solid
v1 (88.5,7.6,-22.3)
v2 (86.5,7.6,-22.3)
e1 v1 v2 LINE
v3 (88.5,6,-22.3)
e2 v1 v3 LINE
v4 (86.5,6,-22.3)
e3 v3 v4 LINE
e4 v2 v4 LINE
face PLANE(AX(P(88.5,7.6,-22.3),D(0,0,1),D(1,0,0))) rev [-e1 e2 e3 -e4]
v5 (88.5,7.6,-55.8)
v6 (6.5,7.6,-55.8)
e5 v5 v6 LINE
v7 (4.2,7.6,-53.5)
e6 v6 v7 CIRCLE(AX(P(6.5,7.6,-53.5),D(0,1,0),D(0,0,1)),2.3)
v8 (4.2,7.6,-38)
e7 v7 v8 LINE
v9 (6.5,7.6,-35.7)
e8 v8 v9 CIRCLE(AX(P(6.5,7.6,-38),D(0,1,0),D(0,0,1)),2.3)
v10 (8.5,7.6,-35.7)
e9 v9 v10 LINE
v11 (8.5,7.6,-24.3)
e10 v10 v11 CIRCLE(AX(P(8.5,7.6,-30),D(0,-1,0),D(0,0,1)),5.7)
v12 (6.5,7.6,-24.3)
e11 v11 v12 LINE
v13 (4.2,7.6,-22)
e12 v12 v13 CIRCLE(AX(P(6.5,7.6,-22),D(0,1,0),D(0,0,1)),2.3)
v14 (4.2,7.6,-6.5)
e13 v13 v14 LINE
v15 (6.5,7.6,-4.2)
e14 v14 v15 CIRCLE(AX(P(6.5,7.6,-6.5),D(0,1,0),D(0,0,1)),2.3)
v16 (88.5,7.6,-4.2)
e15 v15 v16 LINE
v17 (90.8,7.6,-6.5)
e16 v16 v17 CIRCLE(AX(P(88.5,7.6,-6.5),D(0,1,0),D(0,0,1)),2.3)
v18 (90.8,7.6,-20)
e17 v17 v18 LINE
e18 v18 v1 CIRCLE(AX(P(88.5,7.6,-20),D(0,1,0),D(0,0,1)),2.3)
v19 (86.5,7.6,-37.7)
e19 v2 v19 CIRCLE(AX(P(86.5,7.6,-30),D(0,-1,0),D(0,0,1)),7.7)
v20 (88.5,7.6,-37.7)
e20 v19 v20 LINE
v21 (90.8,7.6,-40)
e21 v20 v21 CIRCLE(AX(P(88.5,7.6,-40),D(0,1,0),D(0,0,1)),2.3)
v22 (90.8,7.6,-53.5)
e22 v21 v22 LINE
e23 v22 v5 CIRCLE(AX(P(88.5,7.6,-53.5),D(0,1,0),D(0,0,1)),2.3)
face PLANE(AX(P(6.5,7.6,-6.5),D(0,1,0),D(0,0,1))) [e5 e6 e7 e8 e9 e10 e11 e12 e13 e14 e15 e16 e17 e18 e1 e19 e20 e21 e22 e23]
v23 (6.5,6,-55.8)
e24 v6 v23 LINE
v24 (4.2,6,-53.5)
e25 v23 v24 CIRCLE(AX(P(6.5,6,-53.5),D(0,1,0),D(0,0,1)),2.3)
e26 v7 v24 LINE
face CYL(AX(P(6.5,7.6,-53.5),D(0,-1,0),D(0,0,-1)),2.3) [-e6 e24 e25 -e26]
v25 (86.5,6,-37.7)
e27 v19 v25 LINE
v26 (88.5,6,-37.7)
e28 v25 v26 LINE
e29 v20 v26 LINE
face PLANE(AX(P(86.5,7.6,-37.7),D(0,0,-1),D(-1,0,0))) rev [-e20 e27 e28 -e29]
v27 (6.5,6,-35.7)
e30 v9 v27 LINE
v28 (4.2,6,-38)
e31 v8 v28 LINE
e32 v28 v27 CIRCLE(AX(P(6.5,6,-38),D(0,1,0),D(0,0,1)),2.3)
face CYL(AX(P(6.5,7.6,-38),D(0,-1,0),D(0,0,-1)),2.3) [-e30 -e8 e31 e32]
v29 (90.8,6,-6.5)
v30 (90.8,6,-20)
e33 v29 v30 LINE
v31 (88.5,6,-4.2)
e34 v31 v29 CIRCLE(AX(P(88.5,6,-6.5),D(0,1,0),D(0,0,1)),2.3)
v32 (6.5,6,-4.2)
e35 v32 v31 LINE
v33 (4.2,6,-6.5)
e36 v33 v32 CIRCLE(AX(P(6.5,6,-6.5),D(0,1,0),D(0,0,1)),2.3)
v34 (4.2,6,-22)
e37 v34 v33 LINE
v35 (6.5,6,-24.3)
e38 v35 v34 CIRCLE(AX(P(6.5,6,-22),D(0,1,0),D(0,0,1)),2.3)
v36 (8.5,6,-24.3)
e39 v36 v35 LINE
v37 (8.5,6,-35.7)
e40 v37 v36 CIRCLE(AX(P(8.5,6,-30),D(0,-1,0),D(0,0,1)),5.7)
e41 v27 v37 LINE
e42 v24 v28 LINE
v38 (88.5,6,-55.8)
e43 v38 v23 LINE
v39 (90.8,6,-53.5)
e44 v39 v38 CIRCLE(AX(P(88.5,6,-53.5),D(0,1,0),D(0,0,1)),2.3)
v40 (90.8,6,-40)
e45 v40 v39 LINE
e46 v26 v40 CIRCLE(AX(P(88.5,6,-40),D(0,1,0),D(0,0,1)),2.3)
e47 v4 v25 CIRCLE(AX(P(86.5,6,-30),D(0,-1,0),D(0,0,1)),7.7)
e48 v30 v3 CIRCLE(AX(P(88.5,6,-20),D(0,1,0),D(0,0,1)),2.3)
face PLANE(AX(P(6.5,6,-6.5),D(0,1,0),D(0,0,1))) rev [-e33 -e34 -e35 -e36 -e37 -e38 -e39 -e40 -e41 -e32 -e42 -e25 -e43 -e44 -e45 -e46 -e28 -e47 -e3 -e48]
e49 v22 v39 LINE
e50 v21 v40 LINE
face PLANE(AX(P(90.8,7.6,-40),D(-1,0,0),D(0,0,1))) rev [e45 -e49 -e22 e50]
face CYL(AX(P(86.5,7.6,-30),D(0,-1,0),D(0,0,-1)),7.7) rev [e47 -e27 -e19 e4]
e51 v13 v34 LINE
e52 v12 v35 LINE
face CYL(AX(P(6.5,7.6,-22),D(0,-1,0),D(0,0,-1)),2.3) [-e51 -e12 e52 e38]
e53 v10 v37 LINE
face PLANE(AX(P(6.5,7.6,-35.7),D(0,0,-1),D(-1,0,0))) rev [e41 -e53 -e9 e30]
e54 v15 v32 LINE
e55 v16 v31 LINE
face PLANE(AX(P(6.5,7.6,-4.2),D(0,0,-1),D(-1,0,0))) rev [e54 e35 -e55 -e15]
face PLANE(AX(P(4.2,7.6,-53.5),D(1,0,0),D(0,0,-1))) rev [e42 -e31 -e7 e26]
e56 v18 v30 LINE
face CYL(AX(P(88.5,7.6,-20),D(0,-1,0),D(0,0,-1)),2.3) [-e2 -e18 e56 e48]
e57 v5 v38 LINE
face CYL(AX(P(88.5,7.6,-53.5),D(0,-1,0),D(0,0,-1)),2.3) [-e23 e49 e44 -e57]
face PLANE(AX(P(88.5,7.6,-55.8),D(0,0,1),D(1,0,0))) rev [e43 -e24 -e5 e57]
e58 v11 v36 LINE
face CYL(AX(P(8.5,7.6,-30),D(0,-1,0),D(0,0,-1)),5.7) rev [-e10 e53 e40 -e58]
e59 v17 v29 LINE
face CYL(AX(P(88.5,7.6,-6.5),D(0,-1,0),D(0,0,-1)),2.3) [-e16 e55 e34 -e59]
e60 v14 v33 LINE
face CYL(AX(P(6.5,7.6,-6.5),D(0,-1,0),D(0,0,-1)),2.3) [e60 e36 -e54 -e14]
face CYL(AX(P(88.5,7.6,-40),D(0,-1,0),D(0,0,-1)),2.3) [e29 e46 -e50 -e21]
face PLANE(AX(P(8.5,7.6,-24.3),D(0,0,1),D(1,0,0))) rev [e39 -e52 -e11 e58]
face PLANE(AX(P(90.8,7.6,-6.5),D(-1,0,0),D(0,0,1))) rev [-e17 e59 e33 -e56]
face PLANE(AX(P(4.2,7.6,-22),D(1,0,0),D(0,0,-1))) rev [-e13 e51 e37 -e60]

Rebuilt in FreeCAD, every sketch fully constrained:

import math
import FreeCAD as App
import Part
import Sketcher
from FreeCAD import Vector
Q = App.Units.Quantity


def edges_at(feature, points):
    """Names of the edges that pass closest to the given points."""
    edges = feature.Shape.Edges
    near = lambda p: min(range(len(edges)), key=lambda i: edges[i].distToShape(Part.Vertex(*p))[0])
    return sorted({f"Edge{near(p) + 1}" for p in points})

doc = App.newDocument("Part")
body = doc.addObject("PartDesign::Body", "Body")

# Sketch on XZ plane
sketch1 = body.newObject("Sketcher::SketchObject", "Sketch")
sketch1.AttachmentSupport = (doc.getObject("XZ_Plane"), [""])
sketch1.MapMode = "FlatFace"
sketch1.addGeometry(Part.LineSegment(Vector(0, -60, 0), Vector(0, 0, 0)), False)
sketch1.addGeometry(Part.LineSegment(Vector(0, 0, 0), Vector(95, 0, 0)), False)
sketch1.addGeometry(Part.LineSegment(Vector(95, 0, 0), Vector(95, -60, 0)), False)
sketch1.addGeometry(Part.LineSegment(Vector(95, -60, 0), Vector(0, -60, 0)), False)
sketch1.addConstraint(Sketcher.Constraint("Coincident", 0, 2, 1, 1))
sketch1.addConstraint(Sketcher.Constraint("Coincident", 1, 2, 2, 1))
sketch1.addConstraint(Sketcher.Constraint("Coincident", 2, 2, 3, 1))
sketch1.addConstraint(Sketcher.Constraint("Coincident", 3, 2, 0, 1))
sketch1.addConstraint(Sketcher.Constraint("Vertical", 0))
sketch1.addConstraint(Sketcher.Constraint("Horizontal", 1))
sketch1.addConstraint(Sketcher.Constraint("Vertical", 2))
sketch1.addConstraint(Sketcher.Constraint("Horizontal", 3))
sketch1.addConstraint(Sketcher.Constraint("Coincident", 0, 2, -1, 1))
sketch1.addConstraint(Sketcher.Constraint("DistanceX", 1, 1, 1, 2, Q("95 mm")))
sketch1.addConstraint(Sketcher.Constraint("DistanceY", 0, 1, 0, 2, Q("60 mm")))
pad1 = body.newObject("PartDesign::Pad", "Pad")
pad1.Profile = sketch1
pad1.Length = 6
pad1.Reversed = True

# Sketch on XZ plane
sketch2 = body.newObject("Sketcher::SketchObject", "Sketch001")
sketch2.AttachmentSupport = (doc.getObject("XZ_Plane"), [""])
sketch2.MapMode = "FlatFace"
sketch2.addGeometry(Part.Circle(Vector(86.5, -30, 0), Vector(0, 0, 1), 3.5), False)
sketch2.addGeometry(Part.Circle(Vector(8.5, -30, 0), Vector(0, 0, 1), 1.5), False)
sketch2.addConstraint(Sketcher.Constraint("Horizontal", 0, 3, 1, 3))
sketch2.addConstraint(Sketcher.Constraint("Diameter", 0, Q("7 mm")))
sketch2.addConstraint(Sketcher.Constraint("Diameter", 1, Q("3 mm")))
sketch2.addConstraint(Sketcher.Constraint("DistanceY", 0, 3, -1, 1, Q("30 mm")))
sketch2.addConstraint(Sketcher.Constraint("DistanceX", 1, 3, 0, 3, Q("78 mm")))
sketch2.addConstraint(Sketcher.Constraint("DistanceX", -1, 1, 0, 3, Q("86.5 mm")))
pocket1 = body.newObject("PartDesign::Pocket", "Pocket")
pocket1.Profile = sketch2
pocket1.Type = "ThroughAll"

# Sketch on XZ plane
sketch3 = body.newObject("Sketcher::SketchObject", "Sketch002")
sketch3.AttachmentSupport = (doc.getObject("XZ_Plane"), [""])
sketch3.MapMode = "FlatFace"
sketch3.AttachmentOffset = App.Placement(Vector(0, 0, -6), App.Rotation())
sketch3.addGeometry(Part.LineSegment(Vector(5, -36.5, 0), Vector(8.5, -36.5, 0)), False)
sketch3.addGeometry(Part.ArcOfCircle(Part.Circle(Vector(8.5, -30, 0), Vector(0, 0, 1), 6.5), math.radians(-90), math.radians(90)), False)
sketch3.addGeometry(Part.LineSegment(Vector(8.5, -23.5, 0), Vector(5, -23.5, 0)), False)
sketch3.addGeometry(Part.LineSegment(Vector(5, -23.5, 0), Vector(5, -5, 0)), False)
sketch3.addGeometry(Part.LineSegment(Vector(5, -5, 0), Vector(90, -5, 0)), False)
sketch3.addGeometry(Part.LineSegment(Vector(90, -5, 0), Vector(90, -21.5, 0)), False)
sketch3.addGeometry(Part.LineSegment(Vector(90, -21.5, 0), Vector(86.5, -21.5, 0)), False)
sketch3.addGeometry(Part.ArcOfCircle(Part.Circle(Vector(86.5, -30, 0), Vector(0, 0, 1), 8.5), math.radians(90), math.radians(270)), False)
sketch3.addGeometry(Part.LineSegment(Vector(86.5, -38.5, 0), Vector(90, -38.5, 0)), False)
sketch3.addGeometry(Part.LineSegment(Vector(90, -38.5, 0), Vector(90, -55, 0)), False)
sketch3.addGeometry(Part.LineSegment(Vector(90, -55, 0), Vector(5, -55, 0)), False)
sketch3.addGeometry(Part.LineSegment(Vector(5, -55, 0), Vector(5, -36.5, 0)), False)
sketch3.addConstraint(Sketcher.Constraint("Tangent", 0, 2, 1, 1))
sketch3.addConstraint(Sketcher.Constraint("Tangent", 1, 2, 2, 1))
sketch3.addConstraint(Sketcher.Constraint("Coincident", 2, 2, 3, 1))
sketch3.addConstraint(Sketcher.Constraint("Coincident", 3, 2, 4, 1))
sketch3.addConstraint(Sketcher.Constraint("Coincident", 4, 2, 5, 1))
sketch3.addConstraint(Sketcher.Constraint("Coincident", 5, 2, 6, 1))
sketch3.addConstraint(Sketcher.Constraint("Tangent", 6, 2, 7, 1))
sketch3.addConstraint(Sketcher.Constraint("Tangent", 7, 2, 8, 1))
sketch3.addConstraint(Sketcher.Constraint("Coincident", 8, 2, 9, 1))
sketch3.addConstraint(Sketcher.Constraint("Coincident", 9, 2, 10, 1))
sketch3.addConstraint(Sketcher.Constraint("Coincident", 10, 2, 11, 1))
sketch3.addConstraint(Sketcher.Constraint("Coincident", 11, 2, 0, 1))
sketch3.addConstraint(Sketcher.Constraint("Horizontal", 0))
sketch3.addConstraint(Sketcher.Constraint("Horizontal", 2))
sketch3.addConstraint(Sketcher.Constraint("Vertical", 3))
sketch3.addConstraint(Sketcher.Constraint("Horizontal", 4))
sketch3.addConstraint(Sketcher.Constraint("Vertical", 5))
sketch3.addConstraint(Sketcher.Constraint("Horizontal", 6))
sketch3.addConstraint(Sketcher.Constraint("Horizontal", 8))
sketch3.addConstraint(Sketcher.Constraint("Vertical", 9))
sketch3.addConstraint(Sketcher.Constraint("Horizontal", 10))
sketch3.addConstraint(Sketcher.Constraint("Vertical", 11))
sketch3.addConstraint(Sketcher.Constraint("Horizontal", 1, 3, 7, 3))
sketch3.addConstraint(Sketcher.Constraint("Vertical", 5, 2, 8, 2))
sketch3.addConstraint(Sketcher.Constraint("Vertical", 3, 2, 10, 2))
sketch3.addConstraint(Sketcher.Constraint("Equal", 2, 6))
sketch3.addConstraint(Sketcher.Constraint("Equal", 5, 9))
sketch3.addConstraint(Sketcher.Constraint("Radius", 1, Q("6.5 mm")))
sketch3.addConstraint(Sketcher.Constraint("Radius", 7, Q("8.5 mm")))
sketch3.addConstraint(Sketcher.Constraint("DistanceX", 4, 1, 4, 2, Q("85 mm")))
sketch3.addConstraint(Sketcher.Constraint("DistanceX", 0, 1, 0, 2, Q("3.5 mm")))
sketch3.addConstraint(Sketcher.Constraint("DistanceY", 3, 1, 3, 2, Q("18.5 mm")))
sketch3.addConstraint(Sketcher.Constraint("DistanceY", 1, 3, -1, 1, Q("30 mm")))
sketch3.addConstraint(Sketcher.Constraint("DistanceX", -1, 1, 2, 2, Q("5 mm")))
pocket2 = body.newObject("PartDesign::Pocket", "Pocket001")
pocket2.Profile = sketch3
pocket2.Type = "ThroughAll"
pocket2.Reversed = True
doc.recompute()

fillet = body.newObject("PartDesign::Fillet", "Fillet")
fillet.Base = (pocket2, edges_at(pocket2, [(90, 3, -55)]))
fillet.Radius = 1.5

# Sketch on XZ plane
sketch4 = body.newObject("Sketcher::SketchObject", "Sketch003")
sketch4.AttachmentSupport = (doc.getObject("XZ_Plane"), [""])
sketch4.MapMode = "FlatFace"
sketch4.AttachmentOffset = App.Placement(Vector(0, 0, -6), App.Rotation())
sketch4.addGeometry(Part.LineSegment(Vector(8.5, -28.5, 0), Vector(8.5, -31.5, 0)), False)
sketch4.addGeometry(Part.LineSegment(Vector(8.5, -31.5, 0), Vector(0, -31.5, 0)), False)
sketch4.addGeometry(Part.LineSegment(Vector(0, -31.5, 0), Vector(0, -28.5, 0)), False)
sketch4.addGeometry(Part.LineSegment(Vector(0, -28.5, 0), Vector(8.5, -28.5, 0)), False)
sketch4.addGeometry(Part.LineSegment(Vector(95, -26.5, 0), Vector(95, -33.5, 0)), False)
sketch4.addGeometry(Part.LineSegment(Vector(95, -33.5, 0), Vector(86.5, -33.5, 0)), False)
sketch4.addGeometry(Part.LineSegment(Vector(86.5, -33.5, 0), Vector(86.5, -26.5, 0)), False)
sketch4.addGeometry(Part.LineSegment(Vector(86.5, -26.5, 0), Vector(95, -26.5, 0)), False)
sketch4.addConstraint(Sketcher.Constraint("Coincident", 0, 2, 1, 1))
sketch4.addConstraint(Sketcher.Constraint("Coincident", 1, 2, 2, 1))
sketch4.addConstraint(Sketcher.Constraint("Coincident", 2, 2, 3, 1))
sketch4.addConstraint(Sketcher.Constraint("Coincident", 3, 2, 0, 1))
sketch4.addConstraint(Sketcher.Constraint("Coincident", 4, 2, 5, 1))
sketch4.addConstraint(Sketcher.Constraint("Coincident", 5, 2, 6, 1))
sketch4.addConstraint(Sketcher.Constraint("Coincident", 6, 2, 7, 1))
sketch4.addConstraint(Sketcher.Constraint("Coincident", 7, 2, 4, 1))
sketch4.addConstraint(Sketcher.Constraint("Vertical", 0))
sketch4.addConstraint(Sketcher.Constraint("Horizontal", 1))
sketch4.addConstraint(Sketcher.Constraint("Vertical", 2))
sketch4.addConstraint(Sketcher.Constraint("Horizontal", 3))
sketch4.addConstraint(Sketcher.Constraint("Vertical", 4))
sketch4.addConstraint(Sketcher.Constraint("Horizontal", 5))
sketch4.addConstraint(Sketcher.Constraint("Vertical", 6))
sketch4.addConstraint(Sketcher.Constraint("Horizontal", 7))
sketch4.addConstraint(Sketcher.Constraint("PointOnObject", 1, 2, -2))
sketch4.addConstraint(Sketcher.Constraint("Equal", 3, 5))
sketch4.addConstraint(Sketcher.Constraint("DistanceY", 0, 2, 0, 1, Q("3 mm")))
sketch4.addConstraint(Sketcher.Constraint("DistanceY", 4, 2, 4, 1, Q("7 mm")))
sketch4.addConstraint(Sketcher.Constraint("DistanceX", 1, 2, 1, 1, Q("8.5 mm")))
sketch4.addConstraint(Sketcher.Constraint("DistanceX", -1, 1, 4, 2, Q("95 mm")))
sketch4.addConstraint(Sketcher.Constraint("DistanceY", 4, 2, 0, 2, Q("2 mm")))
sketch4.addConstraint(Sketcher.Constraint("DistanceY", 0, 2, -1, 1, Q("31.5 mm")))
pocket3 = body.newObject("PartDesign::Pocket", "Pocket002")
pocket3.Profile = sketch4
pocket3.Type = "ThroughAll"
pocket3.Reversed = True
doc.recompute()

fillet2 = body.newObject("PartDesign::Fillet", "Fillet001")
fillet2.Base = (pocket3, edges_at(pocket3, [
    (0, 3, -60),
    (95, 3, -60),
    (0, 3, -28.5),
    (95, 3, 0),
    (0, 3, -31.5),
    (0, 3, 0),
    (95, 3, -33.5),
    (95, 3, -26.5),
]))
fillet2.Radius = 5
doc.recompute()

fillet3 = body.newObject("PartDesign::Fillet", "Fillet002")
fillet3.Base = (fillet2, edges_at(fillet2, [
    (5, 3, -5),
    (5, 3, -23.5),
    (5, 3, -36.5),
    (5, 3, -55),
    (90, 3, -38.5),
    (90, 3, -21.5),
    (90, 3, -5),
]))
fillet3.Radius = 1.5

# Sketch on XZ plane
sketch5 = body.newObject("Sketcher::SketchObject", "Sketch004")
sketch5.AttachmentSupport = (doc.getObject("XZ_Plane"), [""])
sketch5.MapMode = "FlatFace"
sketch5.AttachmentOffset = App.Placement(Vector(0, 0, -6), App.Rotation())
sketch5.addGeometry(Part.LineSegment(Vector(6.5, -4.2, 0), Vector(88.5, -4.2, 0)), False)
sketch5.addGeometry(Part.ArcOfCircle(Part.Circle(Vector(88.5, -6.5, 0), Vector(0, 0, 1), 2.3), math.radians(0), math.radians(90)), False)
sketch5.addGeometry(Part.LineSegment(Vector(90.8, -6.5, 0), Vector(90.8, -20, 0)), False)
sketch5.addGeometry(Part.ArcOfCircle(Part.Circle(Vector(88.5, -20, 0), Vector(0, 0, 1), 2.3), math.radians(-90), math.radians(0)), False)
sketch5.addGeometry(Part.LineSegment(Vector(88.5, -22.3, 0), Vector(86.5, -22.3, 0)), False)
sketch5.addGeometry(Part.ArcOfCircle(Part.Circle(Vector(86.5, -30, 0), Vector(0, 0, 1), 7.7), math.radians(90), math.radians(270)), False)
sketch5.addGeometry(Part.LineSegment(Vector(86.5, -37.7, 0), Vector(88.5, -37.7, 0)), False)
sketch5.addGeometry(Part.ArcOfCircle(Part.Circle(Vector(88.5, -40, 0), Vector(0, 0, 1), 2.3), math.radians(0), math.radians(90)), False)
sketch5.addGeometry(Part.LineSegment(Vector(90.8, -40, 0), Vector(90.8, -53.5, 0)), False)
sketch5.addGeometry(Part.ArcOfCircle(Part.Circle(Vector(88.5, -53.5, 0), Vector(0, 0, 1), 2.3), math.radians(-90), math.radians(0)), False)
sketch5.addGeometry(Part.LineSegment(Vector(88.5, -55.8, 0), Vector(6.5, -55.8, 0)), False)
sketch5.addGeometry(Part.ArcOfCircle(Part.Circle(Vector(6.5, -53.5, 0), Vector(0, 0, 1), 2.3), math.radians(180), math.radians(270)), False)
sketch5.addGeometry(Part.LineSegment(Vector(4.2, -53.5, 0), Vector(4.2, -38, 0)), False)
sketch5.addGeometry(Part.ArcOfCircle(Part.Circle(Vector(6.5, -38, 0), Vector(0, 0, 1), 2.3), math.radians(90), math.radians(180)), False)
sketch5.addGeometry(Part.LineSegment(Vector(6.5, -35.7, 0), Vector(8.5, -35.7, 0)), False)
sketch5.addGeometry(Part.ArcOfCircle(Part.Circle(Vector(8.5, -30, 0), Vector(0, 0, 1), 5.7), math.radians(-90), math.radians(90)), False)
sketch5.addGeometry(Part.LineSegment(Vector(8.5, -24.3, 0), Vector(6.5, -24.3, 0)), False)
sketch5.addGeometry(Part.ArcOfCircle(Part.Circle(Vector(6.5, -22, 0), Vector(0, 0, 1), 2.3), math.radians(180), math.radians(270)), False)
sketch5.addGeometry(Part.LineSegment(Vector(4.2, -22, 0), Vector(4.2, -6.5, 0)), False)
sketch5.addGeometry(Part.ArcOfCircle(Part.Circle(Vector(6.5, -6.5, 0), Vector(0, 0, 1), 2.3), math.radians(90), math.radians(180)), False)
sketch5.addConstraint(Sketcher.Constraint("Tangent", 0, 2, 1, 2))
sketch5.addConstraint(Sketcher.Constraint("Tangent", 1, 1, 2, 1))
sketch5.addConstraint(Sketcher.Constraint("Tangent", 2, 2, 3, 2))
sketch5.addConstraint(Sketcher.Constraint("Tangent", 3, 1, 4, 1))
sketch5.addConstraint(Sketcher.Constraint("Tangent", 4, 2, 5, 1))
sketch5.addConstraint(Sketcher.Constraint("Tangent", 5, 2, 6, 1))
sketch5.addConstraint(Sketcher.Constraint("Tangent", 6, 2, 7, 2))
sketch5.addConstraint(Sketcher.Constraint("Tangent", 7, 1, 8, 1))
sketch5.addConstraint(Sketcher.Constraint("Tangent", 8, 2, 9, 2))
sketch5.addConstraint(Sketcher.Constraint("Tangent", 9, 1, 10, 1))
sketch5.addConstraint(Sketcher.Constraint("Tangent", 10, 2, 11, 2))
sketch5.addConstraint(Sketcher.Constraint("Tangent", 11, 1, 12, 1))
sketch5.addConstraint(Sketcher.Constraint("Tangent", 12, 2, 13, 2))
sketch5.addConstraint(Sketcher.Constraint("Tangent", 13, 1, 14, 1))
sketch5.addConstraint(Sketcher.Constraint("Tangent", 14, 2, 15, 1))
sketch5.addConstraint(Sketcher.Constraint("Tangent", 15, 2, 16, 1))
sketch5.addConstraint(Sketcher.Constraint("Tangent", 16, 2, 17, 2))
sketch5.addConstraint(Sketcher.Constraint("Tangent", 17, 1, 18, 1))
sketch5.addConstraint(Sketcher.Constraint("Tangent", 18, 2, 19, 2))
sketch5.addConstraint(Sketcher.Constraint("Tangent", 19, 1, 0, 1))
sketch5.addConstraint(Sketcher.Constraint("Horizontal", 0))
sketch5.addConstraint(Sketcher.Constraint("Vertical", 2))
sketch5.addConstraint(Sketcher.Constraint("Horizontal", 4))
sketch5.addConstraint(Sketcher.Constraint("Horizontal", 6))
sketch5.addConstraint(Sketcher.Constraint("Vertical", 8))
sketch5.addConstraint(Sketcher.Constraint("Horizontal", 10))
sketch5.addConstraint(Sketcher.Constraint("Vertical", 12))
sketch5.addConstraint(Sketcher.Constraint("Horizontal", 14))
sketch5.addConstraint(Sketcher.Constraint("Horizontal", 16))
sketch5.addConstraint(Sketcher.Constraint("Vertical", 18))
sketch5.addConstraint(Sketcher.Constraint("Equal", 1, 3))
sketch5.addConstraint(Sketcher.Constraint("Equal", 3, 7))
sketch5.addConstraint(Sketcher.Constraint("Equal", 7, 9))
sketch5.addConstraint(Sketcher.Constraint("Equal", 9, 11))
sketch5.addConstraint(Sketcher.Constraint("Equal", 11, 13))
sketch5.addConstraint(Sketcher.Constraint("Equal", 13, 17))
sketch5.addConstraint(Sketcher.Constraint("Equal", 17, 19))
sketch5.addConstraint(Sketcher.Constraint("Horizontal", 5, 3, 15, 3))
sketch5.addConstraint(Sketcher.Constraint("Vertical", 3, 3, 7, 3))
sketch5.addConstraint(Sketcher.Constraint("Vertical", 13, 3, 17, 3))
sketch5.addConstraint(Sketcher.Constraint("Equal", 6, 14))
sketch5.addConstraint(Sketcher.Constraint("Equal", 2, 8))
sketch5.addConstraint(Sketcher.Constraint("Radius", 1, Q("2.3 mm")))
sketch5.addConstraint(Sketcher.Constraint("Radius", 5, Q("7.7 mm")))
sketch5.addConstraint(Sketcher.Constraint("Radius", 15, Q("5.7 mm")))
sketch5.addConstraint(Sketcher.Constraint("DistanceX", 0, 1, 0, 2, Q("82 mm")))
sketch5.addConstraint(Sketcher.Constraint("DistanceX", 4, 2, 4, 1, Q("2 mm")))
sketch5.addConstraint(Sketcher.Constraint("DistanceY", 2, 2, 2, 1, Q("13.5 mm")))
sketch5.addConstraint(Sketcher.Constraint("DistanceY", 3, 3, -1, 1, Q("20 mm")))
sketch5.addConstraint(Sketcher.Constraint("DistanceX", -1, 1, 1, 3, Q("88.5 mm")))
pad2 = body.newObject("PartDesign::Pad", "Pad001")
pad2.Profile = sketch5
pad2.Length = 1.6
pad2.Reversed = True

# Sketch on XY plane
sketch6 = body.newObject("Sketcher::SketchObject", "Sketch005")
sketch6.AttachmentSupport = (doc.getObject("XY_Plane"), [""])
sketch6.MapMode = "FlatFace"
sketch6.addGeometry(Part.LineSegment(Vector(0, 6, 0), Vector(0, -18.243237, 0)), False)
sketch6.addGeometry(Part.LineSegment(Vector(0, -18.243237, 0), Vector(102.175429, -18.243237, 0)), False)
sketch6.addGeometry(Part.LineSegment(Vector(102.175429, -18.243237, 0), Vector(102.175429, 6, 0)), False)
sketch6.addGeometry(Part.LineSegment(Vector(102.175429, 6, 0), Vector(0, 6, 0)), False)
sketch6.addConstraint(Sketcher.Constraint("Coincident", 0, 2, 1, 1))
sketch6.addConstraint(Sketcher.Constraint("Coincident", 1, 2, 2, 1))
sketch6.addConstraint(Sketcher.Constraint("Coincident", 2, 2, 3, 1))
sketch6.addConstraint(Sketcher.Constraint("Coincident", 3, 2, 0, 1))
sketch6.addConstraint(Sketcher.Constraint("Vertical", 0))
sketch6.addConstraint(Sketcher.Constraint("Horizontal", 1))
sketch6.addConstraint(Sketcher.Constraint("Vertical", 2))
sketch6.addConstraint(Sketcher.Constraint("Horizontal", 3))
sketch6.addConstraint(Sketcher.Constraint("PointOnObject", 0, 2, -2))
sketch6.addConstraint(Sketcher.Constraint("DistanceY", -1, 1, 2, 2, Q("6 mm")))
sketch6.addConstraint(Sketcher.Constraint("DistanceX", 1, 1, 1, 2, Q("102.175429 mm")))
sketch6.addConstraint(Sketcher.Constraint("DistanceY", 0, 2, 0, 1, Q("24.243237 mm")))
pocket4 = body.newObject("PartDesign::Pocket", "Pocket003")
pocket4.Profile = sketch6
pocket4.Type = "ThroughAll"

doc.recompute()
